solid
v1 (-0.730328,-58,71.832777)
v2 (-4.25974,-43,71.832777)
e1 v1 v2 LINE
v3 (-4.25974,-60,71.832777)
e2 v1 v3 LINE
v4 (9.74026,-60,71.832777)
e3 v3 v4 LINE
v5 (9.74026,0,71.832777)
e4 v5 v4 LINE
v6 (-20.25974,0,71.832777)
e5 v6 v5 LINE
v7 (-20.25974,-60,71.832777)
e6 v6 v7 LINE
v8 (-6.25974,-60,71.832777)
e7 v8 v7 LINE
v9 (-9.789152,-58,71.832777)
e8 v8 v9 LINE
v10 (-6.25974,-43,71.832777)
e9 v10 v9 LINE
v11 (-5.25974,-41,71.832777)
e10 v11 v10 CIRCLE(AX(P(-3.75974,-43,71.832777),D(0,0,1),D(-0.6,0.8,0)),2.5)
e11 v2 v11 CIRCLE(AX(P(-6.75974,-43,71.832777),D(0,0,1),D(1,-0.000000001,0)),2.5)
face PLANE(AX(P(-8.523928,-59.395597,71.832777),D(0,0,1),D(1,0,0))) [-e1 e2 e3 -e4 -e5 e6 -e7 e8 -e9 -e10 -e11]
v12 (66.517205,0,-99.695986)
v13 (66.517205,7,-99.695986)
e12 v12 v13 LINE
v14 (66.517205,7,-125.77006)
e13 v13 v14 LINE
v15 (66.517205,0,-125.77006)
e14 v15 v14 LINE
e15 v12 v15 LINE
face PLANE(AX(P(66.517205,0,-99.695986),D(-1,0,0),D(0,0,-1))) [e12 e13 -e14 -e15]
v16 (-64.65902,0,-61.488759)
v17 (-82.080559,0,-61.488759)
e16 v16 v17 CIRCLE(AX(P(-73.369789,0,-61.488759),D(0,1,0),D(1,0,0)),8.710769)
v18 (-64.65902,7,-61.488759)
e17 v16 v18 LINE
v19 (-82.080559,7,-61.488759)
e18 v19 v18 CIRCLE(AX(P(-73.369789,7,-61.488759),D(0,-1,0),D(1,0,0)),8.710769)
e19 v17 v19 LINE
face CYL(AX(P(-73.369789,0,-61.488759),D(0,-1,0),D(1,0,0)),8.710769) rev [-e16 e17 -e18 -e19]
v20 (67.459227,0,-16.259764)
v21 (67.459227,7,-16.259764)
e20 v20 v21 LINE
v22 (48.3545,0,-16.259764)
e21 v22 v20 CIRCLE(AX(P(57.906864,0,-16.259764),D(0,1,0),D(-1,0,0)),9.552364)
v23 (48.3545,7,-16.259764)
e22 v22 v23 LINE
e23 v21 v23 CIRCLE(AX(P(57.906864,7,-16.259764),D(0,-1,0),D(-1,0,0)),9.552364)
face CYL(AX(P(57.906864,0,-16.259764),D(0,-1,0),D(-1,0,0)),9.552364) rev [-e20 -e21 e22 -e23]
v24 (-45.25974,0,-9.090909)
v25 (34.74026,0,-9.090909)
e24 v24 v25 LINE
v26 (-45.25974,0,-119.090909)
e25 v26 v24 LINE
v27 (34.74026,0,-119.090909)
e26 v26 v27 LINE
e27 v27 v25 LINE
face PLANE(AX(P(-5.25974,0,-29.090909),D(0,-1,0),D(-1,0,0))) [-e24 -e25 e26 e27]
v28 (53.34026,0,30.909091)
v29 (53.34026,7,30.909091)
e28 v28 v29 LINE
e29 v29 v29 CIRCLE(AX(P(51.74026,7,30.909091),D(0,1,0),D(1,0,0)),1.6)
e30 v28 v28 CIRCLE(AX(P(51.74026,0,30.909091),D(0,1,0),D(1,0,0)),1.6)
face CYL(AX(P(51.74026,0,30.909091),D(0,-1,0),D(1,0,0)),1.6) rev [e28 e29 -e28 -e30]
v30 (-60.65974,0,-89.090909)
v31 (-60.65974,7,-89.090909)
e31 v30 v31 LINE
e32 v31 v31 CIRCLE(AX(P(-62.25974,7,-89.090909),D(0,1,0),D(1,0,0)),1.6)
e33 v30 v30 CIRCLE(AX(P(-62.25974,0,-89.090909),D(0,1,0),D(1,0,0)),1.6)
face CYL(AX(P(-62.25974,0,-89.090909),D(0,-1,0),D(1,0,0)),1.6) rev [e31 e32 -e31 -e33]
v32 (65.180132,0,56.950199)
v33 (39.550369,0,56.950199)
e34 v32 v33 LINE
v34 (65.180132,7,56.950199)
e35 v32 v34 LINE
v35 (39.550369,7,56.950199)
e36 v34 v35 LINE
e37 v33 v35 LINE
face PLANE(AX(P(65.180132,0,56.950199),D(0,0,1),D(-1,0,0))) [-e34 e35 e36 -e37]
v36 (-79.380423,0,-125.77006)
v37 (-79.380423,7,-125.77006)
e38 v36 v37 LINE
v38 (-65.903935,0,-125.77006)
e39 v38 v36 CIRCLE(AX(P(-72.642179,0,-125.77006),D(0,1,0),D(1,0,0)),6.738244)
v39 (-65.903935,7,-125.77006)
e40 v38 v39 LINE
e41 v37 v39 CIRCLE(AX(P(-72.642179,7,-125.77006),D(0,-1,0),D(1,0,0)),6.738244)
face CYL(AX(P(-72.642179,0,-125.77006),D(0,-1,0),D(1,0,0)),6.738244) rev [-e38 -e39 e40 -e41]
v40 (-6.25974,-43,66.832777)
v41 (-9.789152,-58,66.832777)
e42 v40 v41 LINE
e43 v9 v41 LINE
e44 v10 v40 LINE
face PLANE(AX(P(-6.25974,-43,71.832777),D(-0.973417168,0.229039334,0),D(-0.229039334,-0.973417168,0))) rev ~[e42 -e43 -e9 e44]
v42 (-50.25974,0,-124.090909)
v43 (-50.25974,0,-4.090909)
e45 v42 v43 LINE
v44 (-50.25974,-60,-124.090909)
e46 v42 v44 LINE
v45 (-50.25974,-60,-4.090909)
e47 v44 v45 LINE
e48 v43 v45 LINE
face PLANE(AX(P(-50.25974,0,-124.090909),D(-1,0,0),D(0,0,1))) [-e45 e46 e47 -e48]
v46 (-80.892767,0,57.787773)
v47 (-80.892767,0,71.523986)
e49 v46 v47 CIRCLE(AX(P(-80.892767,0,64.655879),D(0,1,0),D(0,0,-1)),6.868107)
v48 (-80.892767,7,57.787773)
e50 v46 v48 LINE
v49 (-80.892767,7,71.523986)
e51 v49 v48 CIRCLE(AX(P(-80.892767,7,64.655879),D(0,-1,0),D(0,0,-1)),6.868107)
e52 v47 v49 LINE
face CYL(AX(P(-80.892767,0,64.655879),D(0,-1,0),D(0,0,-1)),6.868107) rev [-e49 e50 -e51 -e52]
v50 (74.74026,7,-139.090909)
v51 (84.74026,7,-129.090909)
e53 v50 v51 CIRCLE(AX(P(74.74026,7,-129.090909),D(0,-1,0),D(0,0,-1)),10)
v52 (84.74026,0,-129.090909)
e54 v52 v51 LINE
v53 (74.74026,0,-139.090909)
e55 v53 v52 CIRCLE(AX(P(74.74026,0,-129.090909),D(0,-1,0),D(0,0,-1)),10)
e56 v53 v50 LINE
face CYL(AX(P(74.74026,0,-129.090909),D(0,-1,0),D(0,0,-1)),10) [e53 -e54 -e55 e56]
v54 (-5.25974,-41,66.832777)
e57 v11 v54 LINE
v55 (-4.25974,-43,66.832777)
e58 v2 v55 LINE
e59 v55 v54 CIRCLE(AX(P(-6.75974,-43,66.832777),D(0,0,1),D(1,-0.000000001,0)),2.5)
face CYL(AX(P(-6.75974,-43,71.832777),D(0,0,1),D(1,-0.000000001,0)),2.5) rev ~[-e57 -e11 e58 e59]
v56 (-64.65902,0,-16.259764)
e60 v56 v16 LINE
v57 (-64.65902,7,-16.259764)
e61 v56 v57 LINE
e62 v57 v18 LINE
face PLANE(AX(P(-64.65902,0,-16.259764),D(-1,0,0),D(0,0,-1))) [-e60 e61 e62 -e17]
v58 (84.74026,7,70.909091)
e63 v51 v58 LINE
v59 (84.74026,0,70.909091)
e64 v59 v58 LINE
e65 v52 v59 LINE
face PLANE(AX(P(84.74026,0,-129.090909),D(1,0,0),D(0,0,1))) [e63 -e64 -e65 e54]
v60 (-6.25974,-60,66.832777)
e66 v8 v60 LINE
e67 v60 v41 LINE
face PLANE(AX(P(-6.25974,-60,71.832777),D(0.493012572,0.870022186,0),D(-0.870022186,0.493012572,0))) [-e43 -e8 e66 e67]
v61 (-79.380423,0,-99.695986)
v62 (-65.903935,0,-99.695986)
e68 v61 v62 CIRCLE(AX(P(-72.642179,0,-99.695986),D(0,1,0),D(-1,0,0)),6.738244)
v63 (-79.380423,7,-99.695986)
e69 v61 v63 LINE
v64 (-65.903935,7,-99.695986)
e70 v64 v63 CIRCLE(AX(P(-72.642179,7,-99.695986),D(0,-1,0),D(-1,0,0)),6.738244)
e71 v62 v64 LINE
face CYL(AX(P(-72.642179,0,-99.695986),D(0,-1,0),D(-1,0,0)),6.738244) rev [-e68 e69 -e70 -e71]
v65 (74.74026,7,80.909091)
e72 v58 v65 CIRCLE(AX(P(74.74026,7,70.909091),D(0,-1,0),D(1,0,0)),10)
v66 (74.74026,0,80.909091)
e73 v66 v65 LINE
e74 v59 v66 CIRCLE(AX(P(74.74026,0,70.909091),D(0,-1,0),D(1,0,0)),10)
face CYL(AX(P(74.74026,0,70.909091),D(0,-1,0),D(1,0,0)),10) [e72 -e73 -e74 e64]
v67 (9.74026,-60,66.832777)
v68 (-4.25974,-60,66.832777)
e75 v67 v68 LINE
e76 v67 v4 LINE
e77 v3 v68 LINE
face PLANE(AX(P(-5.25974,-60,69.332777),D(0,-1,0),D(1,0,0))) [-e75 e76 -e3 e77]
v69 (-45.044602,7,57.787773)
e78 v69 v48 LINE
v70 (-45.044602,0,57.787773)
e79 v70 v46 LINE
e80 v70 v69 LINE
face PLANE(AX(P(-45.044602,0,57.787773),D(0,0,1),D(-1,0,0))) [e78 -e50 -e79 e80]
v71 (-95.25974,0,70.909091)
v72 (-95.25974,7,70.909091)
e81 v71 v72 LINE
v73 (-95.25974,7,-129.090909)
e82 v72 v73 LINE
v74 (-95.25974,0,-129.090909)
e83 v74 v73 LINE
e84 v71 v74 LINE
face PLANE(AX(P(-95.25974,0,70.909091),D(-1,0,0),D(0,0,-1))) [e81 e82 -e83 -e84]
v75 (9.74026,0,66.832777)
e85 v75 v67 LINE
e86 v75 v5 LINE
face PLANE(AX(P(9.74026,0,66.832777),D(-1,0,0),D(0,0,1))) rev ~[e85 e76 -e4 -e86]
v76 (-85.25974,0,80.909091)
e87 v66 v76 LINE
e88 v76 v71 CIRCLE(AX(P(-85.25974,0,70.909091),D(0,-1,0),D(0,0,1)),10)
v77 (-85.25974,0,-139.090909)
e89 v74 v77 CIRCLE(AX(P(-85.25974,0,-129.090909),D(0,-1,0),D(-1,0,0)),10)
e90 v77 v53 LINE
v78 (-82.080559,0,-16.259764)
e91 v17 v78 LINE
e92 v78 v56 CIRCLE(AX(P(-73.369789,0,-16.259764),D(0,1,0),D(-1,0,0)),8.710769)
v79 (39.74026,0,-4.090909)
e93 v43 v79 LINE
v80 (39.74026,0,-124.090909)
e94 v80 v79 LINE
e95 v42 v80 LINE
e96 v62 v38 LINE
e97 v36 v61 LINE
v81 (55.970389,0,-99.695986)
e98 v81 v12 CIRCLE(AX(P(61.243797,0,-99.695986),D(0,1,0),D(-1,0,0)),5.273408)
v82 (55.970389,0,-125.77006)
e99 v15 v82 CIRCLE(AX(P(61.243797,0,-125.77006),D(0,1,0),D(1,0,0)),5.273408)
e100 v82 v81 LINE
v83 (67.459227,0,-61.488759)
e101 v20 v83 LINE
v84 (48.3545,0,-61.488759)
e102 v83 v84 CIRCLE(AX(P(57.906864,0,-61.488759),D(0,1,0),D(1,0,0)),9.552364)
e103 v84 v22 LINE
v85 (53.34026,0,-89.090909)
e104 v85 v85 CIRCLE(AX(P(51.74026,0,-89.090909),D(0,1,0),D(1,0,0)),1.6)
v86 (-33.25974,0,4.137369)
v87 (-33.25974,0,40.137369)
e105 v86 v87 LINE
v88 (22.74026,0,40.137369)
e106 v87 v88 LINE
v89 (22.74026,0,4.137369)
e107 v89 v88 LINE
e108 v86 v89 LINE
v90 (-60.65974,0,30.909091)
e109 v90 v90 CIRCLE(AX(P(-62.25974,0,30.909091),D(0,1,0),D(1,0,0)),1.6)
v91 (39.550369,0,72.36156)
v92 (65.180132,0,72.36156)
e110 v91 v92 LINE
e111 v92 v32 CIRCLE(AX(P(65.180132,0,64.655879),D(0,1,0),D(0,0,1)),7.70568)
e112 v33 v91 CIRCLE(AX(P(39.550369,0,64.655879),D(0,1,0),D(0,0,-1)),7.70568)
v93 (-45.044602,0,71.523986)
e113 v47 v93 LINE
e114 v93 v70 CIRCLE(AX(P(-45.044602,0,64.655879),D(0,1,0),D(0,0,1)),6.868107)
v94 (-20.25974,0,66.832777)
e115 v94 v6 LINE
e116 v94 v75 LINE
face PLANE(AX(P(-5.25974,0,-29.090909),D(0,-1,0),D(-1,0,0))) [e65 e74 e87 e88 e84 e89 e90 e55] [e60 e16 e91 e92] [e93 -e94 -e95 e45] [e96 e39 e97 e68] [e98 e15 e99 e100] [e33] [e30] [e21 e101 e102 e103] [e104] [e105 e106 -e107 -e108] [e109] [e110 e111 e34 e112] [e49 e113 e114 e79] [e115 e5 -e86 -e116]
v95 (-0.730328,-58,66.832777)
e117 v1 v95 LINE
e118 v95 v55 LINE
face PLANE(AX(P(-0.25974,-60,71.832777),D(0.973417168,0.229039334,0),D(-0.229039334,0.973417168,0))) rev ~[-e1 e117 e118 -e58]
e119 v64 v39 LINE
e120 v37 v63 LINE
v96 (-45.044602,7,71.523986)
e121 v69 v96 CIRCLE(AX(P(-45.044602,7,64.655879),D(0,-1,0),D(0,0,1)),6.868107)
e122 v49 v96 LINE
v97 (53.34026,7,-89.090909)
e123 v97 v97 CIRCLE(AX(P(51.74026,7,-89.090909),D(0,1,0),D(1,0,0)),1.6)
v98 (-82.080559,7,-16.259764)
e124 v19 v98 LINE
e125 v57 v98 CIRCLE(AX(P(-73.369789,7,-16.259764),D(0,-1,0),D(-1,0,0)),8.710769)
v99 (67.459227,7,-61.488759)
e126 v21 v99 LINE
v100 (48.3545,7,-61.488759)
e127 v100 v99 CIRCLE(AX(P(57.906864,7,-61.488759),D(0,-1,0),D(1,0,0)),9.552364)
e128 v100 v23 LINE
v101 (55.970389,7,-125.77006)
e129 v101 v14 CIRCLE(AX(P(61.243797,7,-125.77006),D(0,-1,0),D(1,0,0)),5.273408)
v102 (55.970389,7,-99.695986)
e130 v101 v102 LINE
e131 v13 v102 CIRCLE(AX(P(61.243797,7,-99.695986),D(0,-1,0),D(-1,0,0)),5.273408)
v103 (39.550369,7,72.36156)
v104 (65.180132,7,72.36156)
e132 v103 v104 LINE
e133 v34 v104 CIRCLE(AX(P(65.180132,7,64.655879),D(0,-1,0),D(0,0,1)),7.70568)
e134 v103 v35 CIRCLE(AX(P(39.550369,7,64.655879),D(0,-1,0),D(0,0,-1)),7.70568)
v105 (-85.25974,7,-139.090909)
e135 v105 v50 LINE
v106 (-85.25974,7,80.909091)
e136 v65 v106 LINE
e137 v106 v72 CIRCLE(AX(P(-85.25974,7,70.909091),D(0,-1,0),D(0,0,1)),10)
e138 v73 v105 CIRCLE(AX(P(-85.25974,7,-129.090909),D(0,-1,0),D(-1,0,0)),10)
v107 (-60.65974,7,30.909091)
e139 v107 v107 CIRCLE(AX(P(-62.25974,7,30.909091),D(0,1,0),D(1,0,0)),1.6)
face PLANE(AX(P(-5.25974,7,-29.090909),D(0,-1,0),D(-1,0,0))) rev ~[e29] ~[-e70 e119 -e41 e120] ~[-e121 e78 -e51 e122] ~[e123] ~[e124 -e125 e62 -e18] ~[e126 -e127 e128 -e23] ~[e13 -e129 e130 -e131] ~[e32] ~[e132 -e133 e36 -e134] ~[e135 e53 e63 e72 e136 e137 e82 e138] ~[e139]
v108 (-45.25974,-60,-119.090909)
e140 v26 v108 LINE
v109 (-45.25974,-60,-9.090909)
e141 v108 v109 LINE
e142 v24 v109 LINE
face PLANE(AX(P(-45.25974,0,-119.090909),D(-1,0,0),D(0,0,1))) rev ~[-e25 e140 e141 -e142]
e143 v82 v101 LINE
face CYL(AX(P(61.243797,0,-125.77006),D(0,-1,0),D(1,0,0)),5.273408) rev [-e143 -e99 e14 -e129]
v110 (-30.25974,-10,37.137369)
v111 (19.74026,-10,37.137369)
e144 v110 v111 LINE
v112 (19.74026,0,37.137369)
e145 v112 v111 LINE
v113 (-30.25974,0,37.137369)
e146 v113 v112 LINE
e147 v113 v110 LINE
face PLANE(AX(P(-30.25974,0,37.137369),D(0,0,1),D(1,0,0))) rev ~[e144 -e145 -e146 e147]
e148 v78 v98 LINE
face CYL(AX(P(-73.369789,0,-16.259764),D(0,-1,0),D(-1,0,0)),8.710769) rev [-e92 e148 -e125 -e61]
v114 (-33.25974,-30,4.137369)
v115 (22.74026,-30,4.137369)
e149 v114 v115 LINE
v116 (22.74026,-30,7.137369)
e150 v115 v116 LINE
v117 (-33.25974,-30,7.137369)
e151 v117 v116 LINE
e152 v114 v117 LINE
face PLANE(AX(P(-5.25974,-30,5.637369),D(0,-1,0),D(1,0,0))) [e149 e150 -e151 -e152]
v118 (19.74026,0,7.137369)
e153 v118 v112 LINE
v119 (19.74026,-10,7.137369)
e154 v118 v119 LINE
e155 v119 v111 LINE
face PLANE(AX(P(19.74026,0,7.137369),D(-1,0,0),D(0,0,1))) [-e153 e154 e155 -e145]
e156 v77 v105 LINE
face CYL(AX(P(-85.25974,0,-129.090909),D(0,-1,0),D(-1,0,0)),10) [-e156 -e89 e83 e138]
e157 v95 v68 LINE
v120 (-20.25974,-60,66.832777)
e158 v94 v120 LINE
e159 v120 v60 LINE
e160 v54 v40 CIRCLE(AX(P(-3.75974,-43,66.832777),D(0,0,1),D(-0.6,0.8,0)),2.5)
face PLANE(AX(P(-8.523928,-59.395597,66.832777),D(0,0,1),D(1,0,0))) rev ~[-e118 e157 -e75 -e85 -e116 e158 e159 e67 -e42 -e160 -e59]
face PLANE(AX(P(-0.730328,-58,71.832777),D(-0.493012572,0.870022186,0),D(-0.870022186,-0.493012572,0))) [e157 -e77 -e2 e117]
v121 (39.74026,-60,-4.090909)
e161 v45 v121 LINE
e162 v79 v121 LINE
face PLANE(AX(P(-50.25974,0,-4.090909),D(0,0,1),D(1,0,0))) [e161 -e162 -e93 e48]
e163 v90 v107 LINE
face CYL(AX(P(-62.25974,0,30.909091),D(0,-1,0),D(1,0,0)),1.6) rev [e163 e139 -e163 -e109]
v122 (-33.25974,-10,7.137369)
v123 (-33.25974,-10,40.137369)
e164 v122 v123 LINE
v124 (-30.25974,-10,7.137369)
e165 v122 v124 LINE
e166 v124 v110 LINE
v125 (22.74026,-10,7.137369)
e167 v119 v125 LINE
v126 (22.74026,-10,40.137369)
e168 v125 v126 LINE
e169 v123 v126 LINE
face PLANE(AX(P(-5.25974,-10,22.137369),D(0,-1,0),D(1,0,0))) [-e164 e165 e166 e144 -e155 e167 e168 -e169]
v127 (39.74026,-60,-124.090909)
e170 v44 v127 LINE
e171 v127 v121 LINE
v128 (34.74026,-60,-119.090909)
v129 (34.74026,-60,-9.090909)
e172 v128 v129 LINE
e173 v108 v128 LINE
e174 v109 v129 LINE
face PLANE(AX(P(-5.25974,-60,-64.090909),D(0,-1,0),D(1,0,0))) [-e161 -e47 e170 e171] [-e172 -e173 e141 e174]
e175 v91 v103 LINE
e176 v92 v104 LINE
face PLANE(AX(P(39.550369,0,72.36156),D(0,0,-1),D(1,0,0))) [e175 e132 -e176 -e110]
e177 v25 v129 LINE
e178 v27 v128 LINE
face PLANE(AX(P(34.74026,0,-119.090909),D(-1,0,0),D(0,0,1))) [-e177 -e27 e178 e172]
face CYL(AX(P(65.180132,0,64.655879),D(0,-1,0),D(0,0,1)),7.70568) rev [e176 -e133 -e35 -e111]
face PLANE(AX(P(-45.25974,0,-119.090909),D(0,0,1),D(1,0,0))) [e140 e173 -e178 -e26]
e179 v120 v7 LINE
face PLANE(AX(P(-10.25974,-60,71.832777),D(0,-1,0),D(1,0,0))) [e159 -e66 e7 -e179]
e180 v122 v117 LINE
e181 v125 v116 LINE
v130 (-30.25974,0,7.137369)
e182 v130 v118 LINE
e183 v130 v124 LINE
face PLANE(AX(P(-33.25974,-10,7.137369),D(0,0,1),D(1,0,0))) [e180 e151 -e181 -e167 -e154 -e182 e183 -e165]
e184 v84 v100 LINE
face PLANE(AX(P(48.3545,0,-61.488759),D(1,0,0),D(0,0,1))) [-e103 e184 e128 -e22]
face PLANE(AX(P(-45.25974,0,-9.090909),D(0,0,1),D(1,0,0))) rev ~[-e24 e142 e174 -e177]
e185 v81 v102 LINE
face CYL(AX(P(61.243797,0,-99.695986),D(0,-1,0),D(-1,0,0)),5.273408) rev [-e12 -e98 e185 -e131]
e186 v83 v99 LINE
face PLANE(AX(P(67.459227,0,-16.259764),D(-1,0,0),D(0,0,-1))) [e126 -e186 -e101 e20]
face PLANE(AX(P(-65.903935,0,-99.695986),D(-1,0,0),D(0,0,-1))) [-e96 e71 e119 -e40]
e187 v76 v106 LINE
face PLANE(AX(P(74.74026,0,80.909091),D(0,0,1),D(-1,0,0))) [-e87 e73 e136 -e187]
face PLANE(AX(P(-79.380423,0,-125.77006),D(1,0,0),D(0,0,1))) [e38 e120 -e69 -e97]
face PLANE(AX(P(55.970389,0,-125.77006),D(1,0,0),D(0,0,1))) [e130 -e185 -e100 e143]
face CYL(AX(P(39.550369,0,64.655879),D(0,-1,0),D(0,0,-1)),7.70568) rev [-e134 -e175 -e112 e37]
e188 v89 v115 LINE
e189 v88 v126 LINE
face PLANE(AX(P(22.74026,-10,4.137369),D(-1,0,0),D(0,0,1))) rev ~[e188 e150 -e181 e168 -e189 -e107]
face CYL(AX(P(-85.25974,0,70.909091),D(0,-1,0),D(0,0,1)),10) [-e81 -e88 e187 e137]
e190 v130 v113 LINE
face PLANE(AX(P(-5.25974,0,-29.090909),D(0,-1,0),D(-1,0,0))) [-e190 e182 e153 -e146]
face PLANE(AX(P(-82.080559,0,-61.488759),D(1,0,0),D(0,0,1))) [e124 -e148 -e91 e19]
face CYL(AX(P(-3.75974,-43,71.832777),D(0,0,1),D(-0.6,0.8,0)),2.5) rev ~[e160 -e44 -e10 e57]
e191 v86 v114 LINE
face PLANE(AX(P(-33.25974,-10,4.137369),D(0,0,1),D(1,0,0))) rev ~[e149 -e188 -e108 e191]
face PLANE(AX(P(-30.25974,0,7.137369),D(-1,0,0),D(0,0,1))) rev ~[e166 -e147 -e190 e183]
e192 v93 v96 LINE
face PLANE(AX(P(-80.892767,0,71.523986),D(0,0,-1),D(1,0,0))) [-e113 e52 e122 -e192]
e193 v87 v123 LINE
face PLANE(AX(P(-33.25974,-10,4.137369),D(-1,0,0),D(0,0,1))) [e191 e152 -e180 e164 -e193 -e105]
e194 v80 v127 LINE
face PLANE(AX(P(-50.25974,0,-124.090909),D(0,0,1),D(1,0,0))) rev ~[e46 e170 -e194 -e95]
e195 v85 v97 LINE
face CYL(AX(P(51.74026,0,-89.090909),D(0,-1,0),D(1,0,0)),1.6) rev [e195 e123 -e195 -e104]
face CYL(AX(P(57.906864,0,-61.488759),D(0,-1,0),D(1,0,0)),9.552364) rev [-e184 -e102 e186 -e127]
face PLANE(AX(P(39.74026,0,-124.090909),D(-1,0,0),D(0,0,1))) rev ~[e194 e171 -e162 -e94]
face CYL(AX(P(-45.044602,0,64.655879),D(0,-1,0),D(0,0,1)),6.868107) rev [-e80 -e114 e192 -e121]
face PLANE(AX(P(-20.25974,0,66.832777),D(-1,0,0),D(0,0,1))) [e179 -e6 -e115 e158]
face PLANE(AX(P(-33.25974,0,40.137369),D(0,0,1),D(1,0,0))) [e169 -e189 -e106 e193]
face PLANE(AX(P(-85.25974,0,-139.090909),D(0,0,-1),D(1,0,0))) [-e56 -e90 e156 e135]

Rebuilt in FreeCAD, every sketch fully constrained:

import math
import FreeCAD as App
import Part
import Sketcher
Q = App.Units.Quantity

doc = App.newDocument("Part")
params = doc.addObject("Spreadsheet::Sheet", "Params")
for row, (alias, value) in enumerate([
    ("sketch1_radius", "10 mm"),
    ("sketch1_diameter", "3.2 mm"),
    ("sketch1_width", "160 mm"),
    ("sketch1_height", "200 mm"),
    ("pad1_length", "7 mm"),
    ("sketch2_width", "90 mm"),
    ("sketch2_width2", "80 mm"),
    ("sketch2_height", "120 mm"),
    ("sketch2_height2", "110 mm"),
    ("pad2_length", "60 mm"),
    ("sketch3_width", "56 mm"),
    ("sketch3_width2", "50 mm"),
    ("sketch3_height", "36 mm"),
    ("sketch3_height2", "30 mm"),
    ("pad3_length", "10 mm"),
    ("sketch4_width", "56 mm"),
    ("sketch4_height", "3 mm"),
    ("pad4_length", "20 mm"),
    ("sketch5_width", "30 mm"),
    ("sketch5_height", "5 mm"),
    ("pad5_length", "60 mm"),
    ("sketch6_radius", "2.5 mm"),
    ("sketch6_width", "10 mm"),
    ("pocket1_length", "10 mm"),
    ("sketch7_width", "4 mm"),
    ("pad6_length", "5 mm"),
    ("pocket2_length", "10 mm"),
    ("pocket3_length", "10 mm"),
    ("pocket4_length", "10 mm"),
], start=1):
    params.set(f"A{row}", alias)
    params.set(f"B{row}", "=" + value)
    params.setAlias(f"B{row}", alias)

body = doc.addObject("PartDesign::Body", "Body")

sketch1 = body.newObject("Sketcher::SketchObject", "Sketch")
sketch1.AttachmentSupport = (doc.getObject("XZ_Plane"), [""])
sketch1.MapMode = "FlatFace"
sketch1.addGeometry(Part.LineSegment(App.Vector(74.7, -139.1, 0), App.Vector(-85.3, -139.1, 0)), False)
sketch1.addGeometry(Part.ArcOfCircle(Part.Circle(App.Vector(-85.3, -129.1, 0), App.Vector(0, 0, 1), 10), math.radians(180), math.radians(270)), False)
sketch1.addGeometry(Part.LineSegment(App.Vector(-95.3, -129.1, 0), App.Vector(-95.3, 70.9, 0)), False)
sketch1.addGeometry(Part.ArcOfCircle(Part.Circle(App.Vector(-85.3, 70.9, 0), App.Vector(0, 0, 1), 10), math.radians(90), math.radians(180)), False)
sketch1.addGeometry(Part.LineSegment(App.Vector(-85.3, 80.9, 0), App.Vector(74.7, 80.9, 0)), False)
sketch1.addGeometry(Part.ArcOfCircle(Part.Circle(App.Vector(74.7, 70.9, 0), App.Vector(0, 0, 1), 10), math.radians(0), math.radians(90)), False)
sketch1.addGeometry(Part.LineSegment(App.Vector(84.7, 70.9, 0), App.Vector(84.7, -129.1, 0)), False)
sketch1.addGeometry(Part.ArcOfCircle(Part.Circle(App.Vector(74.7, -129.1, 0), App.Vector(0, 0, 1), 10), math.radians(-90), math.radians(0)), False)
sketch1.addGeometry(Part.Circle(App.Vector(51.7, 30.9, 0), App.Vector(0, 0, 1), 1.6), False)
sketch1.addGeometry(Part.Circle(App.Vector(-62.3, 30.9, 0), App.Vector(0, 0, 1), 1.6), False)
sketch1.addGeometry(Part.Circle(App.Vector(51.7, -89.1, 0), App.Vector(0, 0, 1), 1.6), False)
sketch1.addGeometry(Part.Circle(App.Vector(-62.3, -89.1, 0), App.Vector(0, 0, 1), 1.6), False)
sketch1.addConstraint(Sketcher.Constraint("Tangent", 0, 2, 1, 2))
sketch1.addConstraint(Sketcher.Constraint("Tangent", 1, 1, 2, 1))
sketch1.addConstraint(Sketcher.Constraint("Tangent", 2, 2, 3, 2))
sketch1.addConstraint(Sketcher.Constraint("Tangent", 3, 1, 4, 1))
sketch1.addConstraint(Sketcher.Constraint("Tangent", 4, 2, 5, 2))
sketch1.addConstraint(Sketcher.Constraint("Tangent", 5, 1, 6, 1))
sketch1.addConstraint(Sketcher.Constraint("Tangent", 6, 2, 7, 2))
sketch1.addConstraint(Sketcher.Constraint("Tangent", 7, 1, 0, 1))
sketch1.addConstraint(Sketcher.Constraint("Horizontal", 0))
sketch1.addConstraint(Sketcher.Constraint("Vertical", 2))
sketch1.addConstraint(Sketcher.Constraint("Horizontal", 4))
sketch1.addConstraint(Sketcher.Constraint("Vertical", 6))
sketch1.addConstraint(Sketcher.Constraint("Equal", 1, 3))
sketch1.addConstraint(Sketcher.Constraint("Equal", 3, 5))
sketch1.addConstraint(Sketcher.Constraint("Equal", 5, 7))
sketch1.addConstraint(Sketcher.Constraint("Equal", 8, 9))
sketch1.addConstraint(Sketcher.Constraint("Equal", 9, 10))
sketch1.addConstraint(Sketcher.Constraint("Equal", 10, 11))
sketch1.addConstraint(Sketcher.Constraint("Horizontal", 8, 3, 9, 3))
sketch1.addConstraint(Sketcher.Constraint("Horizontal", 10, 3, 11, 3))
sketch1.addConstraint(Sketcher.Constraint("Vertical", 8, 3, 10, 3))
sketch1.addConstraint(Sketcher.Constraint("Vertical", 9, 3, 11, 3))
sketch1.addConstraint(Sketcher.Constraint("Radius", 1, Q("10 mm")))
sketch1.addConstraint(Sketcher.Constraint("Diameter", 8, Q("3.2 mm")))
sketch1.addConstraint(Sketcher.Constraint("DistanceX", 0, 2, 0, 1, Q("160 mm")))
sketch1.addConstraint(Sketcher.Constraint("DistanceY", 2, 1, 2, 2, Q("200 mm")))
sketch1.addConstraint(Sketcher.Constraint("DistanceX", 8, 3, 5, 3, Q("23 mm")))
sketch1.addConstraint(Sketcher.Constraint("DistanceY", 8, 3, 5, 3, Q("40 mm")))
sketch1.addConstraint(Sketcher.Constraint("DistanceX", 3, 3, 9, 3, Q("23 mm")))
sketch1.addConstraint(Sketcher.Constraint("DistanceY", 7, 3, 10, 3, Q("40 mm")))
sketch1.addConstraint(Sketcher.Constraint("DistanceX", 1, 3, -1, 1, Q("85.25974 mm")))
sketch1.addConstraint(Sketcher.Constraint("DistanceY", 1, 3, -1, 1, Q("129.090909 mm")))
sketch1.setExpression("Constraints[22]", "Params.sketch1_radius")
sketch1.setExpression("Constraints[23]", "Params.sketch1_diameter")
sketch1.setExpression("Constraints[24]", "Params.sketch1_width")
sketch1.setExpression("Constraints[25]", "Params.sketch1_height")
pad1 = body.newObject("PartDesign::Pad", "Pad")
pad1.Profile = sketch1
pad1.setExpression("Length", "Params.pad1_length")
pad1.Reversed = True

sketch2 = body.newObject("Sketcher::SketchObject", "Sketch001")
sketch2.AttachmentSupport = (doc.getObject("XZ_Plane"), [""])
sketch2.MapMode = "FlatFace"
sketch2.addGeometry(Part.LineSegment(App.Vector(-50, -4, 0), App.Vector(-50, -124, 0)), False)
sketch2.addGeometry(Part.LineSegment(App.Vector(-50, -124, 0), App.Vector(40, -124, 0)), False)
sketch2.addGeometry(Part.LineSegment(App.Vector(40, -124, 0), App.Vector(40, -4, 0)), False)
sketch2.addGeometry(Part.LineSegment(App.Vector(40, -4, 0), App.Vector(-50, -4, 0)), False)
sketch2.addGeometry(Part.LineSegment(App.Vector(35, -119, 0), App.Vector(-45, -119, 0)), False)
sketch2.addGeometry(Part.LineSegment(App.Vector(-45, -119, 0), App.Vector(-45, -9, 0)), False)
sketch2.addGeometry(Part.LineSegment(App.Vector(-45, -9, 0), App.Vector(35, -9, 0)), False)
sketch2.addGeometry(Part.LineSegment(App.Vector(35, -9, 0), App.Vector(35, -119, 0)), False)
sketch2.addConstraint(Sketcher.Constraint("Coincident", 0, 2, 1, 1))
sketch2.addConstraint(Sketcher.Constraint("Coincident", 1, 2, 2, 1))
sketch2.addConstraint(Sketcher.Constraint("Coincident", 2, 2, 3, 1))
sketch2.addConstraint(Sketcher.Constraint("Coincident", 3, 2, 0, 1))
sketch2.addConstraint(Sketcher.Constraint("Coincident", 4, 2, 5, 1))
sketch2.addConstraint(Sketcher.Constraint("Coincident", 5, 2, 6, 1))
sketch2.addConstraint(Sketcher.Constraint("Coincident", 6, 2, 7, 1))
sketch2.addConstraint(Sketcher.Constraint("Coincident", 7, 2, 4, 1))
sketch2.addConstraint(Sketcher.Constraint("Vertical", 0))
sketch2.addConstraint(Sketcher.Constraint("Horizontal", 1))
sketch2.addConstraint(Sketcher.Constraint("Vertical", 2))
sketch2.addConstraint(Sketcher.Constraint("Horizontal", 3))
sketch2.addConstraint(Sketcher.Constraint("Horizontal", 4))
sketch2.addConstraint(Sketcher.Constraint("Vertical", 5))
sketch2.addConstraint(Sketcher.Constraint("Horizontal", 6))
sketch2.addConstraint(Sketcher.Constraint("Vertical", 7))
sketch2.addConstraint(Sketcher.Constraint("DistanceX", 1, 1, 1, 2, Q("90 mm")))
sketch2.addConstraint(Sketcher.Constraint("DistanceX", 4, 2, 4, 1, Q("80 mm")))
sketch2.addConstraint(Sketcher.Constraint("DistanceY", 0, 2, 0, 1, Q("120 mm")))
sketch2.addConstraint(Sketcher.Constraint("DistanceY", 5, 1, 5, 2, Q("110 mm")))
sketch2.addConstraint(Sketcher.Constraint("DistanceX", 0, 2, 4, 2, Q("5 mm")))
sketch2.addConstraint(Sketcher.Constraint("DistanceY", 0, 2, 4, 2, Q("5 mm")))
sketch2.addConstraint(Sketcher.Constraint("DistanceX", 0, 2, -1, 1, Q("50.25974 mm")))
sketch2.addConstraint(Sketcher.Constraint("DistanceY", 0, 2, -1, 1, Q("124.090909 mm")))
sketch2.setExpression("Constraints[16]", "Params.sketch2_width")
sketch2.setExpression("Constraints[17]", "Params.sketch2_width2")
sketch2.setExpression("Constraints[18]", "Params.sketch2_height")
sketch2.setExpression("Constraints[19]", "Params.sketch2_height2")
pad2 = body.newObject("PartDesign::Pad", "Pad001")
pad2.Profile = sketch2
pad2.setExpression("Length", "Params.pad2_length")

sketch3 = body.newObject("Sketcher::SketchObject", "Sketch002")
sketch3.AttachmentSupport = (doc.getObject("XZ_Plane"), [""])
sketch3.MapMode = "FlatFace"
sketch3.addGeometry(Part.LineSegment(App.Vector(-33, 40, 0), App.Vector(-33, 4, 0)), False)
sketch3.addGeometry(Part.LineSegment(App.Vector(-33, 4, 0), App.Vector(23, 4, 0)), False)
sketch3.addGeometry(Part.LineSegment(App.Vector(23, 4, 0), App.Vector(23, 40, 0)), False)
sketch3.addGeometry(Part.LineSegment(App.Vector(23, 40, 0), App.Vector(-33, 40, 0)), False)
sketch3.addGeometry(Part.LineSegment(App.Vector(20, 7, 0), App.Vector(-30, 7, 0)), False)
sketch3.addGeometry(Part.LineSegment(App.Vector(-30, 7, 0), App.Vector(-30, 37, 0)), False)
sketch3.addGeometry(Part.LineSegment(App.Vector(-30, 37, 0), App.Vector(20, 37, 0)), False)
sketch3.addGeometry(Part.LineSegment(App.Vector(20, 37, 0), App.Vector(20, 7, 0)), False)
sketch3.addConstraint(Sketcher.Constraint("Coincident", 0, 2, 1, 1))
sketch3.addConstraint(Sketcher.Constraint("Coincident", 1, 2, 2, 1))
sketch3.addConstraint(Sketcher.Constraint("Coincident", 2, 2, 3, 1))
sketch3.addConstraint(Sketcher.Constraint("Coincident", 3, 2, 0, 1))
sketch3.addConstraint(Sketcher.Constraint("Coincident", 4, 2, 5, 1))
sketch3.addConstraint(Sketcher.Constraint("Coincident", 5, 2, 6, 1))
sketch3.addConstraint(Sketcher.Constraint("Coincident", 6, 2, 7, 1))
sketch3.addConstraint(Sketcher.Constraint("Coincident", 7, 2, 4, 1))
sketch3.addConstraint(Sketcher.Constraint("Vertical", 0))
sketch3.addConstraint(Sketcher.Constraint("Horizontal", 1))
sketch3.addConstraint(Sketcher.Constraint("Vertical", 2))
sketch3.addConstraint(Sketcher.Constraint("Horizontal", 3))
sketch3.addConstraint(Sketcher.Constraint("Horizontal", 4))
sketch3.addConstraint(Sketcher.Constraint("Vertical", 5))
sketch3.addConstraint(Sketcher.Constraint("Horizontal", 6))
sketch3.addConstraint(Sketcher.Constraint("Vertical", 7))
sketch3.addConstraint(Sketcher.Constraint("DistanceX", 1, 1, 1, 2, Q("56 mm")))
sketch3.addConstraint(Sketcher.Constraint("DistanceX", 4, 2, 4, 1, Q("50 mm")))
sketch3.addConstraint(Sketcher.Constraint("DistanceY", 0, 2, 0, 1, Q("36 mm")))
sketch3.addConstraint(Sketcher.Constraint("DistanceY", 5, 1, 5, 2, Q("30 mm")))
sketch3.addConstraint(Sketcher.Constraint("DistanceX", 0, 2, 4, 2, Q("3 mm")))
sketch3.addConstraint(Sketcher.Constraint("DistanceY", 0, 2, 4, 2, Q("3 mm")))
sketch3.addConstraint(Sketcher.Constraint("DistanceX", 0, 2, -1, 1, Q("33.25974 mm")))
sketch3.addConstraint(Sketcher.Constraint("DistanceY", -1, 1, 0, 2, Q("4.137369 mm")))
sketch3.setExpression("Constraints[16]", "Params.sketch3_width")
sketch3.setExpression("Constraints[17]", "Params.sketch3_width2")
sketch3.setExpression("Constraints[18]", "Params.sketch3_height")
sketch3.setExpression("Constraints[19]", "Params.sketch3_height2")
pad3 = body.newObject("PartDesign::Pad", "Pad002")
pad3.Profile = sketch3
pad3.setExpression("Length", "Params.pad3_length")

sketch4 = body.newObject("Sketcher::SketchObject", "Sketch003")
sketch4.AttachmentSupport = (doc.getObject("XZ_Plane"), [""])
sketch4.MapMode = "FlatFace"
sketch4.AttachmentOffset = App.Placement(App.Vector(0, 0, 10), App.Rotation())
sketch4.addGeometry(Part.LineSegment(App.Vector(-33.3, 7.1, 0), App.Vector(-33.3, 4.1, 0)), False)
sketch4.addGeometry(Part.LineSegment(App.Vector(-33.3, 4.1, 0), App.Vector(22.7, 4.1, 0)), False)
sketch4.addGeometry(Part.LineSegment(App.Vector(22.7, 4.1, 0), App.Vector(22.7, 7.1, 0)), False)
sketch4.addGeometry(Part.LineSegment(App.Vector(22.7, 7.1, 0), App.Vector(-33.3, 7.1, 0)), False)
sketch4.addConstraint(Sketcher.Constraint("Coincident", 0, 2, 1, 1))
sketch4.addConstraint(Sketcher.Constraint("Coincident", 1, 2, 2, 1))
sketch4.addConstraint(Sketcher.Constraint("Coincident", 2, 2, 3, 1))
sketch4.addConstraint(Sketcher.Constraint("Coincident", 3, 2, 0, 1))
sketch4.addConstraint(Sketcher.Constraint("Vertical", 0))
sketch4.addConstraint(Sketcher.Constraint("Horizontal", 1))
sketch4.addConstraint(Sketcher.Constraint("Vertical", 2))
sketch4.addConstraint(Sketcher.Constraint("Horizontal", 3))
sketch4.addConstraint(Sketcher.Constraint("DistanceX", 1, 1, 1, 2, Q("56 mm")))
sketch4.addConstraint(Sketcher.Constraint("DistanceY", 0, 2, 0, 1, Q("3 mm")))
sketch4.addConstraint(Sketcher.Constraint("DistanceX", 0, 2, -1, 1, Q("33.25974 mm")))
sketch4.addConstraint(Sketcher.Constraint("DistanceY", -1, 1, 0, 2, Q("4.137369 mm")))
sketch4.setExpression("Constraints[8]", "Params.sketch4_width")
sketch4.setExpression("Constraints[9]", "Params.sketch4_height")
pad4 = body.newObject("PartDesign::Pad", "Pad003")
pad4.Profile = sketch4
pad4.setExpression("Length", "Params.pad4_length")

sketch5 = body.newObject("Sketcher::SketchObject", "Sketch004")
sketch5.AttachmentSupport = (doc.getObject("XZ_Plane"), [""])
sketch5.MapMode = "FlatFace"
sketch5.addGeometry(Part.LineSegment(App.Vector(-20, 72, 0), App.Vector(-20, 67, 0)), False)
sketch5.addGeometry(Part.LineSegment(App.Vector(-20, 67, 0), App.Vector(10, 67, 0)), False)
sketch5.addGeometry(Part.LineSegment(App.Vector(10, 67, 0), App.Vector(10, 72, 0)), False)
sketch5.addGeometry(Part.LineSegment(App.Vector(10, 72, 0), App.Vector(-20, 72, 0)), False)
sketch5.addConstraint(Sketcher.Constraint("Coincident", 0, 2, 1, 1))
sketch5.addConstraint(Sketcher.Constraint("Coincident", 1, 2, 2, 1))
sketch5.addConstraint(Sketcher.Constraint("Coincident", 2, 2, 3, 1))
sketch5.addConstraint(Sketcher.Constraint("Coincident", 3, 2, 0, 1))
sketch5.addConstraint(Sketcher.Constraint("Vertical", 0))
sketch5.addConstraint(Sketcher.Constraint("Horizontal", 1))
sketch5.addConstraint(Sketcher.Constraint("Vertical", 2))
sketch5.addConstraint(Sketcher.Constraint("Horizontal", 3))
sketch5.addConstraint(Sketcher.Constraint("DistanceX", 1, 1, 1, 2, Q("30 mm")))
sketch5.addConstraint(Sketcher.Constraint("DistanceY", 0, 2, 0, 1, Q("5 mm")))
sketch5.addConstraint(Sketcher.Constraint("DistanceX", 0, 2, -1, 1, Q("20.25974 mm")))
sketch5.addConstraint(Sketcher.Constraint("DistanceY", -1, 1, 0, 2, Q("66.832777 mm")))
sketch5.setExpression("Constraints[8]", "Params.sketch5_width")
sketch5.setExpression("Constraints[9]", "Params.sketch5_height")
pad5 = body.newObject("PartDesign::Pad", "Pad004")
pad5.Profile = sketch5
pad5.setExpression("Length", "Params.pad5_length")

sketch6 = body.newObject("Sketcher::SketchObject", "Sketch005")
sketch6.AttachmentSupport = (doc.getObject("XY_Plane"), [""])
sketch6.MapMode = "FlatFace"
sketch6.AttachmentOffset = App.Placement(App.Vector(0, 0, 71.832777), App.Rotation())
sketch6.addGeometry(Part.LineSegment(App.Vector(-6.3, -43, 0), App.Vector(-10.3, -60, 0)), False)
sketch6.addGeometry(Part.LineSegment(App.Vector(-10.3, -60, 0), App.Vector(-0.3, -60, 0)), False)
sketch6.addGeometry(Part.LineSegment(App.Vector(-0.3, -60, 0), App.Vector(-4.3, -43, 0)), False)
sketch6.addGeometry(Part.ArcOfCircle(Part.Circle(App.Vector(-6.8, -43, 0), App.Vector(0, 0, 1), 2.5), math.radians(0), math.radians(53)), False)
sketch6.addGeometry(Part.ArcOfCircle(Part.Circle(App.Vector(-3.8, -43, 0), App.Vector(0, 0, 1), 2.5), math.radians(127), math.radians(180)), False)
sketch6.addConstraint(Sketcher.Constraint("Coincident", 0, 2, 1, 1))
sketch6.addConstraint(Sketcher.Constraint("Coincident", 1, 2, 2, 1))
sketch6.addConstraint(Sketcher.Constraint("Coincident", 2, 2, 3, 1))
sketch6.addConstraint(Sketcher.Constraint("Coincident", 3, 2, 4, 1))
sketch6.addConstraint(Sketcher.Constraint("Coincident", 4, 2, 0, 1))
sketch6.addConstraint(Sketcher.Constraint("Horizontal", 1))
sketch6.addConstraint(Sketcher.Constraint("Equal", 3, 4))
sketch6.addConstraint(Sketcher.Constraint("Horizontal", 3, 3, 4, 3))
sketch6.addConstraint(Sketcher.Constraint("Horizontal", 4, 3, 2, 2))
sketch6.addConstraint(Sketcher.Constraint("Horizontal", 2, 2, 4, 2))
sketch6.addConstraint(Sketcher.Constraint("Equal", 0, 2))
sketch6.addConstraint(Sketcher.Constraint("Radius", 3, Q("2.5 mm")))
sketch6.addConstraint(Sketcher.Constraint("DistanceX", 1, 1, 1, 2, Q("10 mm")))
sketch6.addConstraint(Sketcher.Constraint("DistanceY", 3, 3, -1, 1, Q("43 mm")))
sketch6.addConstraint(Sketcher.Constraint("DistanceY", 0, 2, -1, 1, Q("60 mm")))
sketch6.addConstraint(Sketcher.Constraint("DistanceY", 3, 2, -1, 1, Q("41 mm")))
sketch6.addConstraint(Sketcher.Constraint("DistanceX", 3, 3, -1, 1, Q("6.75974 mm")))
sketch6.setExpression("Constraints[11]", "Params.sketch6_radius")
sketch6.setExpression("Constraints[12]", "Params.sketch6_width")
pocket1 = body.newObject("PartDesign::Pocket", "Pocket")
pocket1.Profile = sketch6
pocket1.setExpression("Length", "Params.pocket1_length")

sketch7 = body.newObject("Sketcher::SketchObject", "Sketch006")
sketch7.AttachmentSupport = (doc.getObject("XY_Plane"), [""])
sketch7.MapMode = "FlatFace"
sketch7.AttachmentOffset = App.Placement(App.Vector(0, 0, 71.832777), App.Rotation())
sketch7.addGeometry(Part.LineSegment(App.Vector(-6.3, -60, 0), App.Vector(-9.8, -58, 0)), False)
sketch7.addGeometry(Part.LineSegment(App.Vector(-9.8, -58, 0), App.Vector(-10.3, -60, 0)), False)
sketch7.addGeometry(Part.LineSegment(App.Vector(-10.3, -60, 0), App.Vector(-6.3, -60, 0)), False)
sketch7.addGeometry(Part.LineSegment(App.Vector(-4.3, -60, 0), App.Vector(-0.3, -60, 0)), False)
sketch7.addGeometry(Part.LineSegment(App.Vector(-0.3, -60, 0), App.Vector(-0.7, -58, 0)), False)
sketch7.addGeometry(Part.LineSegment(App.Vector(-0.7, -58, 0), App.Vector(-4.3, -60, 0)), False)
sketch7.addConstraint(Sketcher.Constraint("Coincident", 0, 2, 1, 1))
sketch7.addConstraint(Sketcher.Constraint("Coincident", 1, 2, 2, 1))
sketch7.addConstraint(Sketcher.Constraint("Coincident", 2, 2, 0, 1))
sketch7.addConstraint(Sketcher.Constraint("Coincident", 3, 2, 4, 1))
sketch7.addConstraint(Sketcher.Constraint("Coincident", 4, 2, 5, 1))
sketch7.addConstraint(Sketcher.Constraint("Coincident", 5, 2, 3, 1))
sketch7.addConstraint(Sketcher.Constraint("Horizontal", 2))
sketch7.addConstraint(Sketcher.Constraint("Horizontal", 3))
sketch7.addConstraint(Sketcher.Constraint("Horizontal", 2, 2, 3, 2))
sketch7.addConstraint(Sketcher.Constraint("Horizontal", 0, 2, 4, 2))
sketch7.addConstraint(Sketcher.Constraint("Equal", 2, 3))
sketch7.addConstraint(Sketcher.Constraint("Equal", 1, 4))
sketch7.addConstraint(Sketcher.Constraint("DistanceX", 2, 1, 2, 2, Q("4 mm")))
sketch7.addConstraint(Sketcher.Constraint("DistanceY", 0, 2, -1, 1, Q("58 mm")))
sketch7.addConstraint(Sketcher.Constraint("DistanceY", 1, 2, -1, 1, Q("60 mm")))
sketch7.addConstraint(Sketcher.Constraint("DistanceX", 2, 2, 3, 2, Q("6 mm")))
sketch7.addConstraint(Sketcher.Constraint("Distance", 0, Q("4.056692 mm")))
sketch7.addConstraint(Sketcher.Constraint("DistanceX", 1, 2, -1, 1, Q("10.25974 mm")))
sketch7.setExpression("Constraints[12]", "Params.sketch7_width")
pad6 = body.newObject("PartDesign::Pad", "Pad005")
pad6.Profile = sketch7
pad6.setExpression("Length", "Params.pad6_length")
pad6.Reversed = True

sketch8 = body.newObject("Sketcher::SketchObject", "Sketch007")
sketch8.AttachmentSupport = (doc.getObject("XZ_Plane"), [""])
sketch8.MapMode = "FlatFace"
sketch8.addGeometry(Part.LineSegment(App.Vector(-65, -61, 0), App.Vector(-65, -16, 0)), False)
sketch8.addGeometry(Part.ArcOfCircle(Part.Circle(App.Vector(-73, -16, 0), App.Vector(0, 0, 1), 9), math.radians(0), math.radians(180)), False)
sketch8.addGeometry(Part.LineSegment(App.Vector(-82, -16, 0), App.Vector(-82, -61, 0)), False)
sketch8.addGeometry(Part.ArcOfCircle(Part.Circle(App.Vector(-73, -61, 0), App.Vector(0, 0, 1), 9), math.radians(180), math.radians(360)), False)
sketch8.addGeometry(Part.LineSegment(App.Vector(67, -61, 0), App.Vector(67, -16, 0)), False)
sketch8.addGeometry(Part.ArcOfCircle(Part.Circle(App.Vector(58, -16, 0), App.Vector(0, 0, 1), 10), math.radians(0), math.radians(180)), False)
sketch8.addGeometry(Part.LineSegment(App.Vector(48, -16, 0), App.Vector(48, -61, 0)), False)
sketch8.addGeometry(Part.ArcOfCircle(Part.Circle(App.Vector(58, -61, 0), App.Vector(0, 0, 1), 10), math.radians(180), math.radians(360)), False)
sketch8.addConstraint(Sketcher.Constraint("Tangent", 0, 2, 1, 1))
sketch8.addConstraint(Sketcher.Constraint("Tangent", 1, 2, 2, 1))
sketch8.addConstraint(Sketcher.Constraint("Tangent", 2, 2, 3, 1))
sketch8.addConstraint(Sketcher.Constraint("Tangent", 3, 2, 0, 1))
sketch8.addConstraint(Sketcher.Constraint("Tangent", 4, 2, 5, 1))
sketch8.addConstraint(Sketcher.Constraint("Tangent", 5, 2, 6, 1))
sketch8.addConstraint(Sketcher.Constraint("Tangent", 6, 2, 7, 1))
sketch8.addConstraint(Sketcher.Constraint("Tangent", 7, 2, 4, 1))
sketch8.addConstraint(Sketcher.Constraint("Vertical", 0))
sketch8.addConstraint(Sketcher.Constraint("Vertical", 2))
sketch8.addConstraint(Sketcher.Constraint("Vertical", 4))
sketch8.addConstraint(Sketcher.Constraint("Vertical", 6))
sketch8.addConstraint(Sketcher.Constraint("Horizontal", 1, 3, 5, 3))
sketch8.addConstraint(Sketcher.Constraint("Horizontal", 3, 3, 7, 3))
sketch8.addConstraint(Sketcher.Constraint("Radius", 1, Q("8.710769 mm")))
sketch8.addConstraint(Sketcher.Constraint("Radius", 5, Q("9.552364 mm")))
sketch8.addConstraint(Sketcher.Constraint("DistanceX", -1, 1, 5, 2, Q("48.3545 mm")))
sketch8.addConstraint(Sketcher.Constraint("DistanceY", 0, 1, 0, 2, Q("45.228994 mm")))
sketch8.addConstraint(Sketcher.Constraint("DistanceX", 1, 3, -1, 1, Q("73.369789 mm")))
sketch8.addConstraint(Sketcher.Constraint("DistanceY", 3, 3, -1, 1, Q("61.488759 mm")))
pocket2 = body.newObject("PartDesign::Pocket", "Pocket001")
pocket2.Profile = sketch8
pocket2.setExpression("Length", "Params.pocket2_length")

sketch9 = body.newObject("Sketcher::SketchObject", "Sketch008")
sketch9.AttachmentSupport = (doc.getObject("XZ_Plane"), [""])
sketch9.MapMode = "FlatFace"
sketch9.addGeometry(Part.LineSegment(App.Vector(-45, 72, 0), App.Vector(-81, 72, 0)), False)
sketch9.addGeometry(Part.ArcOfCircle(Part.Circle(App.Vector(-81, 65, 0), App.Vector(0, 0, 1), 7), math.radians(90), math.radians(270)), False)
sketch9.addGeometry(Part.LineSegment(App.Vector(-81, 58, 0), App.Vector(-45, 58, 0)), False)
sketch9.addGeometry(Part.ArcOfCircle(Part.Circle(App.Vector(-45, 65, 0), App.Vector(0, 0, 1), 7), math.radians(-90), math.radians(90)), False)
sketch9.addGeometry(Part.LineSegment(App.Vector(65, 72, 0), App.Vector(40, 72, 0)), False)
sketch9.addGeometry(Part.ArcOfCircle(Part.Circle(App.Vector(40, 65, 0), App.Vector(0, 0, 1), 8), math.radians(90), math.radians(270)), False)
sketch9.addGeometry(Part.LineSegment(App.Vector(40, 57, 0), App.Vector(65, 57, 0)), False)
sketch9.addGeometry(Part.ArcOfCircle(Part.Circle(App.Vector(65, 65, 0), App.Vector(0, 0, 1), 8), math.radians(-90), math.radians(90)), False)
sketch9.addConstraint(Sketcher.Constraint("Tangent", 0, 2, 1, 1))
sketch9.addConstraint(Sketcher.Constraint("Tangent", 1, 2, 2, 1))
sketch9.addConstraint(Sketcher.Constraint("Tangent", 2, 2, 3, 1))
sketch9.addConstraint(Sketcher.Constraint("Tangent", 3, 2, 0, 1))
sketch9.addConstraint(Sketcher.Constraint("Tangent", 4, 2, 5, 1))
sketch9.addConstraint(Sketcher.Constraint("Tangent", 5, 2, 6, 1))
sketch9.addConstraint(Sketcher.Constraint("Tangent", 6, 2, 7, 1))
sketch9.addConstraint(Sketcher.Constraint("Tangent", 7, 2, 4, 1))
sketch9.addConstraint(Sketcher.Constraint("Horizontal", 0))
sketch9.addConstraint(Sketcher.Constraint("Horizontal", 2))
sketch9.addConstraint(Sketcher.Constraint("Horizontal", 4))
sketch9.addConstraint(Sketcher.Constraint("Horizontal", 6))
sketch9.addConstraint(Sketcher.Constraint("Horizontal", 3, 3, 5, 3))
sketch9.addConstraint(Sketcher.Constraint("Radius", 5, Q("7.70568 mm")))
sketch9.addConstraint(Sketcher.Constraint("Radius", 1, Q("6.868107 mm")))
sketch9.addConstraint(Sketcher.Constraint("DistanceX", 3, 3, -1, 1, Q("45.044602 mm")))
sketch9.addConstraint(Sketcher.Constraint("DistanceY", -1, 1, 5, 2, Q("56.950199 mm")))
sketch9.addConstraint(Sketcher.Constraint("DistanceX", 1, 3, 7, 3, Q("146.0729 mm")))
sketch9.addConstraint(Sketcher.Constraint("DistanceX", 0, 2, 0, 1, Q("35.848166 mm")))
sketch9.addConstraint(Sketcher.Constraint("DistanceX", 4, 2, 4, 1, Q("25.629763 mm")))
pocket3 = body.newObject("PartDesign::Pocket", "Pocket002")
pocket3.Profile = sketch9
pocket3.setExpression("Length", "Params.pocket3_length")

sketch10 = body.newObject("Sketcher::SketchObject", "Sketch009")
sketch10.AttachmentSupport = (doc.getObject("XZ_Plane"), [""])
sketch10.MapMode = "FlatFace"
sketch10.addGeometry(Part.LineSegment(App.Vector(-66, -126, 0), App.Vector(-66, -100, 0)), False)
sketch10.addGeometry(Part.ArcOfCircle(Part.Circle(App.Vector(-73, -100, 0), App.Vector(0, 0, 1), 7), math.radians(0), math.radians(180)), False)
sketch10.addGeometry(Part.LineSegment(App.Vector(-79, -100, 0), App.Vector(-79, -126, 0)), False)
sketch10.addGeometry(Part.ArcOfCircle(Part.Circle(App.Vector(-73, -126, 0), App.Vector(0, 0, 1), 7), math.radians(180), math.radians(360)), False)
sketch10.addGeometry(Part.LineSegment(App.Vector(67, -126, 0), App.Vector(67, -100, 0)), False)
sketch10.addGeometry(Part.ArcOfCircle(Part.Circle(App.Vector(61, -100, 0), App.Vector(0, 0, 1), 5), math.radians(0), math.radians(180)), False)
sketch10.addGeometry(Part.LineSegment(App.Vector(56, -100, 0), App.Vector(56, -126, 0)), False)
sketch10.addGeometry(Part.ArcOfCircle(Part.Circle(App.Vector(61, -126, 0), App.Vector(0, 0, 1), 5), math.radians(180), math.radians(360)), False)
sketch10.addConstraint(Sketcher.Constraint("Tangent", 0, 2, 1, 1))
sketch10.addConstraint(Sketcher.Constraint("Tangent", 1, 2, 2, 1))
sketch10.addConstraint(Sketcher.Constraint("Tangent", 2, 2, 3, 1))
sketch10.addConstraint(Sketcher.Constraint("Tangent", 3, 2, 0, 1))
sketch10.addConstraint(Sketcher.Constraint("Tangent", 4, 2, 5, 1))
sketch10.addConstraint(Sketcher.Constraint("Tangent", 5, 2, 6, 1))
sketch10.addConstraint(Sketcher.Constraint("Tangent", 6, 2, 7, 1))
sketch10.addConstraint(Sketcher.Constraint("Tangent", 7, 2, 4, 1))
sketch10.addConstraint(Sketcher.Constraint("Vertical", 0))
sketch10.addConstraint(Sketcher.Constraint("Vertical", 2))
sketch10.addConstraint(Sketcher.Constraint("Vertical", 4))
sketch10.addConstraint(Sketcher.Constraint("Vertical", 6))
sketch10.addConstraint(Sketcher.Constraint("Horizontal", 1, 3, 5, 3))
sketch10.addConstraint(Sketcher.Constraint("Horizontal", 3, 3, 7, 3))
sketch10.addConstraint(Sketcher.Constraint("Radius", 5, Q("5.273408 mm")))
sketch10.addConstraint(Sketcher.Constraint("Radius", 1, Q("6.738244 mm")))
sketch10.addConstraint(Sketcher.Constraint("DistanceY", 0, 1, 0, 2, Q("26.074074 mm")))
sketch10.addConstraint(Sketcher.Constraint("DistanceX", 1, 3, -1, 1, Q("72.642179 mm")))
sketch10.addConstraint(Sketcher.Constraint("DistanceY", 3, 3, -1, 1, Q("125.77006 mm")))
sketch10.addConstraint(Sketcher.Constraint("DistanceX", -1, 1, 5, 2, Q("55.970389 mm")))
pocket4 = body.newObject("PartDesign::Pocket", "Pocket003")
pocket4.Profile = sketch10
pocket4.setExpression("Length", "Params.pocket4_length")

doc.recompute()
